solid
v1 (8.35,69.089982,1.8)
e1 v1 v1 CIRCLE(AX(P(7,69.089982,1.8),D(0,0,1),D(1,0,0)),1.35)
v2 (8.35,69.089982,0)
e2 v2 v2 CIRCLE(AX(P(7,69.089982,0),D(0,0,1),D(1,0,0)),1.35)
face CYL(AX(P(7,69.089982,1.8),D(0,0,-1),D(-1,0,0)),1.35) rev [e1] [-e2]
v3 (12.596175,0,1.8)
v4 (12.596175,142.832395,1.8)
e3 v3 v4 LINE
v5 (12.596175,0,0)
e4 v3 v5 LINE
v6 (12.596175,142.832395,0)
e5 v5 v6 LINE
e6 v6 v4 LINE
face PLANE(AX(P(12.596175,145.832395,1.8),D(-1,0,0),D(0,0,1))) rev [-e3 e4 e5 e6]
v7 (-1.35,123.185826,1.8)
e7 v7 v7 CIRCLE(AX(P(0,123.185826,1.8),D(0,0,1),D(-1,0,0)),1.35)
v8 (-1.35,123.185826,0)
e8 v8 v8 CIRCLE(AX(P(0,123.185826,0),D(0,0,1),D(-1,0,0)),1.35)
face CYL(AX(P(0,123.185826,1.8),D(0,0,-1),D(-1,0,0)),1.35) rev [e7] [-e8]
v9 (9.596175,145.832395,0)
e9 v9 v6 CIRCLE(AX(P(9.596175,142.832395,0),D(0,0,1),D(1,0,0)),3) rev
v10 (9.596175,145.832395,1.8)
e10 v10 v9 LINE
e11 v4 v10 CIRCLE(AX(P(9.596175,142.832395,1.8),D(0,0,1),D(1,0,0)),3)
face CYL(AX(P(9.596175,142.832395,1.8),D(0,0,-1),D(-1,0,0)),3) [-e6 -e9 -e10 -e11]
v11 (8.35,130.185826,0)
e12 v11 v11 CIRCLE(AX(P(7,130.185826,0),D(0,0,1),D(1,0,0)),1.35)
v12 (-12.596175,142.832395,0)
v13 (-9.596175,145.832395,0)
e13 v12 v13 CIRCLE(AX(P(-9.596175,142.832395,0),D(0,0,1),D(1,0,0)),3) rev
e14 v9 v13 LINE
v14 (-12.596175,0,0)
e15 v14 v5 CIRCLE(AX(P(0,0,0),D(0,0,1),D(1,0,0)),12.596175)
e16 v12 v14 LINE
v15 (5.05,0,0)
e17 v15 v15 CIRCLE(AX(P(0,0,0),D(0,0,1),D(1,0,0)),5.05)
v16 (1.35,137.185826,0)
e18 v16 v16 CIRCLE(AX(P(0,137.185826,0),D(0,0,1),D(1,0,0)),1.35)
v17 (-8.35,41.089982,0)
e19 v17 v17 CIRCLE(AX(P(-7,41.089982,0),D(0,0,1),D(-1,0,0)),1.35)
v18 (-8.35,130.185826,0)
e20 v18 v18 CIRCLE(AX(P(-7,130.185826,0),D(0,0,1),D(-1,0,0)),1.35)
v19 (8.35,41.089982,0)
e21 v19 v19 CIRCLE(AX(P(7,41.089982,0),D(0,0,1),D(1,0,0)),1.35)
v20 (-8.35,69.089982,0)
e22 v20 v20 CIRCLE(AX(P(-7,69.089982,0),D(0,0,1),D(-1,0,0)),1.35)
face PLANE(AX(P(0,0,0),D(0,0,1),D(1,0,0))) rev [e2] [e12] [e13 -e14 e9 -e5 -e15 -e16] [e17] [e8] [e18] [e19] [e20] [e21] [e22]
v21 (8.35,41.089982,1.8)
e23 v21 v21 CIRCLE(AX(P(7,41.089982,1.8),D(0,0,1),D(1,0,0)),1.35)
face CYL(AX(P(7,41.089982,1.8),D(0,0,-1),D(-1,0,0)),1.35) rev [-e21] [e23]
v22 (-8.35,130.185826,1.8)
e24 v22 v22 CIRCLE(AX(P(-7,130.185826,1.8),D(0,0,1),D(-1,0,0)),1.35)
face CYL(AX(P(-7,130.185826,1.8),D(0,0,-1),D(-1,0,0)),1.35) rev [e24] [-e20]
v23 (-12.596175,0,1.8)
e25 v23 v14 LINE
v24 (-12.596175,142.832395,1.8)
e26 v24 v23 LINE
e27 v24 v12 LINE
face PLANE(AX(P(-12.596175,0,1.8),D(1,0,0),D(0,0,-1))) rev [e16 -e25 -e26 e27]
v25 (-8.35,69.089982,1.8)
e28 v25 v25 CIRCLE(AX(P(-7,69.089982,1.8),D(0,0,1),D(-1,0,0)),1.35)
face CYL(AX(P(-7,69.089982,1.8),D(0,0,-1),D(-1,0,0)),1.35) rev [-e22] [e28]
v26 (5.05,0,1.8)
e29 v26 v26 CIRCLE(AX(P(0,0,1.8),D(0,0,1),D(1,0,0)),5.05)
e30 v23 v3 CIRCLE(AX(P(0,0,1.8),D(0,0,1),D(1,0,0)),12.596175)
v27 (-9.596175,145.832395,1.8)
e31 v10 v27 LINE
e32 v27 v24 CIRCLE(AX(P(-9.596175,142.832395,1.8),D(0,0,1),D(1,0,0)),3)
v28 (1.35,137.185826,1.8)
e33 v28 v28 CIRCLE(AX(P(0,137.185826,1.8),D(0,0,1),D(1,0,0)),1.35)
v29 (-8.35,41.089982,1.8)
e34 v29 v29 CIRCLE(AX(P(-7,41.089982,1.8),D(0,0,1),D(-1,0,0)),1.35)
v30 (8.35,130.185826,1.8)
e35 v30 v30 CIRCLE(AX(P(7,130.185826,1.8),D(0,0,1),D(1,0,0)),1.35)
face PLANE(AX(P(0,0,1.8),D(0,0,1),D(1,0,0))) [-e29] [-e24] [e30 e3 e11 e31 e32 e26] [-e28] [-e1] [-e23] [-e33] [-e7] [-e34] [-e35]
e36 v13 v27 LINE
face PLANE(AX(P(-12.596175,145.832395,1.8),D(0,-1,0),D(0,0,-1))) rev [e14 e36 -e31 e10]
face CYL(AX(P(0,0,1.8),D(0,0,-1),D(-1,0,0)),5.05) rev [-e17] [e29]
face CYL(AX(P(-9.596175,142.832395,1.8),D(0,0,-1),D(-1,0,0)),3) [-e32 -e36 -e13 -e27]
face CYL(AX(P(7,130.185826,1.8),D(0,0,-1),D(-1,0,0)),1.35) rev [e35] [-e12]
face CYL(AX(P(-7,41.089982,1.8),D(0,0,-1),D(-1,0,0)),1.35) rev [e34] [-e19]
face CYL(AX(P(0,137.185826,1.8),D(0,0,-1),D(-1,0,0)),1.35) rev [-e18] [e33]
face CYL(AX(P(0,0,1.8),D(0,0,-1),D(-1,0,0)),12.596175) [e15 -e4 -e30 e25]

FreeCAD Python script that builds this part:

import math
import FreeCAD as App
import Part
import Sketcher

V = App.Vector


def edges_at(feature, points):
    """Names of the edges that pass closest to the given points."""
    edges = feature.Shape.Edges
    near = lambda p: min(range(len(edges)), key=lambda i: edges[i].distToShape(Part.Vertex(*p))[0])
    return sorted({f"Edge{near(p) + 1}" for p in points})

doc = App.newDocument("Part")
body = doc.addObject("PartDesign::Body", "Body")

# Sketch on XY plane
sketch1 = body.newObject("Sketcher::SketchObject", "Sketch")
sketch1.AttachmentSupport = (doc.getObject("XY_Plane"), [""])
sketch1.MapMode = "FlatFace"
sketch1.addGeometry([
    Part.LineSegment(V(-12.6, 145.8, 0), V(-12.6, 0, 0)),  # 0
    Part.ArcOfCircle(Part.Circle(V(0, 0, 0), V(0, 0, 1), 12.6), math.radians(180), math.radians(360)),  # 1
    Part.LineSegment(V(12.6, 0, 0), V(12.6, 145.8, 0)),  # 2
    Part.LineSegment(V(12.6, 145.8, 0), V(-12.6, 145.8, 0)),  # 3
    Part.Circle(V(7, 41.1, 0), V(0, 0, 1), 1.4),  # 4
    Part.Circle(V(0, 0, 0), V(0, 0, 1), 5),  # 5
    Part.Circle(V(-7, 41.1, 0), V(0, 0, 1), 1.4),  # 6
    Part.Circle(V(7, 69.1, 0), V(0, 0, 1), 1.4),  # 7
    Part.Circle(V(7, 130.2, 0), V(0, 0, 1), 1.4),  # 8
    Part.Circle(V(-7, 69.1, 0), V(0, 0, 1), 1.4),  # 9
    Part.Circle(V(0, 123.2, 0), V(0, 0, 1), 1.4),  # 10
    Part.Circle(V(0, 137.2, 0), V(0, 0, 1), 1.4),  # 11
    Part.Circle(V(-7, 130.2, 0), V(0, 0, 1), 1.4),  # 12
], False)
sketch1.addConstraint([
    Sketcher.Constraint("Tangent", 0, 2, 1, 1),
    Sketcher.Constraint("Tangent", 1, 2, 2, 1),
    Sketcher.Constraint("Coincident", 2, 2, 3, 1),
    Sketcher.Constraint("Coincident", 3, 2, 0, 1),
    Sketcher.Constraint("Vertical", 0),
    Sketcher.Constraint("Vertical", 2),
    Sketcher.Constraint("Horizontal", 3),
    Sketcher.Constraint("Coincident", 1, 3, -1, 1),
    Sketcher.Constraint("Coincident", 5, 3, -1, 1),
    Sketcher.Constraint("Equal", 4, 6),
    Sketcher.Constraint("Equal", 6, 7),
    Sketcher.Constraint("Equal", 7, 8),
    Sketcher.Constraint("Equal", 8, 9),
    Sketcher.Constraint("Equal", 9, 10),
    Sketcher.Constraint("Equal", 10, 11),
    Sketcher.Constraint("Equal", 11, 12),
    Sketcher.Constraint("Symmetric", 4, 3, 6, 3, -2),
    Sketcher.Constraint("Symmetric", 7, 3, 9, 3, -2),
    Sketcher.Constraint("Symmetric", 8, 3, 12, 3, -2),
    Sketcher.Constraint("PointOnObject", 10, 3, -2),
    Sketcher.Constraint("PointOnObject", 11, 3, -2),
    Sketcher.Constraint("Vertical", 4, 3, 7, 3),
    Sketcher.Constraint("Vertical", 7, 3, 8, 3),
    Sketcher.Constraint("Diameter", 4, 2.7),
    Sketcher.Constraint("Diameter", 5, 10.1),
    Sketcher.Constraint("DistanceX", -1, 1, 4, 3, 7.0),
    Sketcher.Constraint("DistanceY", 4, 3, 7, 3, 28.0),
    Sketcher.Constraint("DistanceY", 10, 3, 8, 3, 7.0),
    Sketcher.Constraint("DistanceY", 8, 3, 11, 3, 7.0),
    Sketcher.Constraint("Radius", 1, 12.596175),
    Sketcher.Constraint("DistanceY", 0, 2, 0, 1, 145.832395),
    Sketcher.Constraint("DistanceY", -1, 1, 4, 3, 41.089982),
    Sketcher.Constraint("DistanceY", 11, 3, 2, 2, 8.646569),
])
pad1 = body.newObject("PartDesign::Pad", "Pad")
pad1.Profile = sketch1
pad1.Length = 1.8
doc.recompute()

fillet = body.newObject("PartDesign::Fillet", "Fillet")
fillet.Base = (pad1, edges_at(pad1, [(-12.596, 145.832, 0.9)]))
fillet.Radius = 3
doc.recompute()

fillet2 = body.newObject("PartDesign::Fillet", "Fillet001")
fillet2.Base = (fillet, edges_at(fillet, [(12.596, 145.832, 0.9)]))
fillet2.Radius = 3

doc.recompute()
